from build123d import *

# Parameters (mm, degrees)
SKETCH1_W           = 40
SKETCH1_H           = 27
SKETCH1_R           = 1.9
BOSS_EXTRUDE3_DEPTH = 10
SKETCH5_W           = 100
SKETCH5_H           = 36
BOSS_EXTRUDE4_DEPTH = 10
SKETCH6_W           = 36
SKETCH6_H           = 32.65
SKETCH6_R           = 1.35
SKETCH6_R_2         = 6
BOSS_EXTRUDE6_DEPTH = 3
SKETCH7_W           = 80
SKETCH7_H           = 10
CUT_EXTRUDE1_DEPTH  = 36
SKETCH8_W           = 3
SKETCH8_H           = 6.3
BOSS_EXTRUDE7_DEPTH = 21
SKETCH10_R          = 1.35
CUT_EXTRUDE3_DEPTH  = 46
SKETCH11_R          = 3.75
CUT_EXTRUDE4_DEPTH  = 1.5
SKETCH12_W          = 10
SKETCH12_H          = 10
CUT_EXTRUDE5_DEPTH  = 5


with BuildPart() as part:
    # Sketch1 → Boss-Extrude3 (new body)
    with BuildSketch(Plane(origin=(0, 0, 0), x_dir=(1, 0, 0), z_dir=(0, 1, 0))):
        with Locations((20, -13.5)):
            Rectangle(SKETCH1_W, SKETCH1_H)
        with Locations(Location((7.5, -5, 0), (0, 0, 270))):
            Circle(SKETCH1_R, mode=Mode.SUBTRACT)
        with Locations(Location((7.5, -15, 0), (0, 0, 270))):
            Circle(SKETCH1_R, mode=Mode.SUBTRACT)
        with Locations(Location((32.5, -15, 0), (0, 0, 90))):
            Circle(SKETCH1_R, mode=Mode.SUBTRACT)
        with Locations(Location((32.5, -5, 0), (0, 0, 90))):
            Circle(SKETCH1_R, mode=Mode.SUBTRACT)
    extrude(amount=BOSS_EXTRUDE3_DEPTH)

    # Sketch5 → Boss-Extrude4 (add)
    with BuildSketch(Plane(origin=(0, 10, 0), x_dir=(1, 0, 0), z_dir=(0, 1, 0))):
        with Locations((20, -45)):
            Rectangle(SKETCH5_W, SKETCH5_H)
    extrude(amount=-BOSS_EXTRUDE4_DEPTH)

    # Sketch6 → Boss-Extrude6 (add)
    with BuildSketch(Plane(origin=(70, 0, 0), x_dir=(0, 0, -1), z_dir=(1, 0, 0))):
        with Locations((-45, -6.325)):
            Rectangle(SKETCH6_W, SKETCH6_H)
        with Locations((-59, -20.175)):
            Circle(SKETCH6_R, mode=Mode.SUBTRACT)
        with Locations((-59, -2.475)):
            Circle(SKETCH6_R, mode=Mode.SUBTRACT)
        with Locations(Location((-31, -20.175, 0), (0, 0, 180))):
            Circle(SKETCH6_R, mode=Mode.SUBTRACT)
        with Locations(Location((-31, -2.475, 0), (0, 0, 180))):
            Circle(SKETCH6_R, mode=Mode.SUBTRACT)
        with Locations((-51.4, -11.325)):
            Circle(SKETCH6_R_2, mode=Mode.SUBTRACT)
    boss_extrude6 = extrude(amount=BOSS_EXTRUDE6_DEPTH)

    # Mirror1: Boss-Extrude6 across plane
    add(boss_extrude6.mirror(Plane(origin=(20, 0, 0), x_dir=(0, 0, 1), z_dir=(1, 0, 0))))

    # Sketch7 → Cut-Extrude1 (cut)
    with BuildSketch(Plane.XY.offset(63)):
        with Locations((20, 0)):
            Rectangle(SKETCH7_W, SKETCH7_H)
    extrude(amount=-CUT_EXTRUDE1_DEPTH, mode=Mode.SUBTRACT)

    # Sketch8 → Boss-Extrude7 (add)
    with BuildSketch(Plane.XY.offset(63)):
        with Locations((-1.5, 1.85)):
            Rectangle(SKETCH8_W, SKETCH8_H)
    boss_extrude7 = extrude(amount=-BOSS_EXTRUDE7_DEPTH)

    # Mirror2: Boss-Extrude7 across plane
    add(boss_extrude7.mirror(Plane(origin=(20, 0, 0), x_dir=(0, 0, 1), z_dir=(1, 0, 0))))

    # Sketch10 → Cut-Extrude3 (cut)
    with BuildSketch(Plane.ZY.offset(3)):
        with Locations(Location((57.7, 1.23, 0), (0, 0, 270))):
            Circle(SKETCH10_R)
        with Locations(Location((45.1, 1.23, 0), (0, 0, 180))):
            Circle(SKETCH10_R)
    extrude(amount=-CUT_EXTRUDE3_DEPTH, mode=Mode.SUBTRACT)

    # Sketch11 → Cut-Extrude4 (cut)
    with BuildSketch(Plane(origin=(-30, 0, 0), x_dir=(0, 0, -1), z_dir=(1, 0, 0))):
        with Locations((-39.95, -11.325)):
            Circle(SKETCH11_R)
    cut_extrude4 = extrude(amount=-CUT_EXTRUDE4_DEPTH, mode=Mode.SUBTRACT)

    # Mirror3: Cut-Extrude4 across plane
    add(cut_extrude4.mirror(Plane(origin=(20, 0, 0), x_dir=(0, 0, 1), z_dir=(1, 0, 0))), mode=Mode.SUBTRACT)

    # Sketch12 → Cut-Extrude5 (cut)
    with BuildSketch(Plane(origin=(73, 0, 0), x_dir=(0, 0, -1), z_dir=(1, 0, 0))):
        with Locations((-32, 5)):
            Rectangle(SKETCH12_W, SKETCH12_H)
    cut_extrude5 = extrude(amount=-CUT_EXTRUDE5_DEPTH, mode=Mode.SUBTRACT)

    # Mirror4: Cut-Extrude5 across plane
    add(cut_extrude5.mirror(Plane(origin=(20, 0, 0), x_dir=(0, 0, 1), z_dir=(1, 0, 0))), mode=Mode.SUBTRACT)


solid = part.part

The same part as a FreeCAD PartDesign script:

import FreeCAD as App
import Part
import Sketcher
Q = App.Units.Quantity


def add_polygon(sketch, points):
    """Adds a closed chain of lines whose ends are joined by coincident constraints."""
    first, n = sketch.GeometryCount, len(points)
    for a, b in zip(points, points[1:] + points[:1]):
        sketch.addGeometry(Part.LineSegment(App.Vector(*a, 0), App.Vector(*b, 0)), False)
    for i in range(n):
        sketch.addConstraint(Sketcher.Constraint("Coincident", first + i, 2, first + (i + 1) % n, 1))

doc = App.newDocument("Part")
body = doc.addObject("PartDesign::Body", "Body")

# Sketch on XZ plane
sketch1 = body.newObject("Sketcher::SketchObject", "Sketch")
sketch1.AttachmentSupport = (doc.getObject("XZ_Plane"), [""])
sketch1.MapMode = "FlatFace"
add_polygon(sketch1, [(0, 0), (0, 27), (40, 27), (40, 0)])  # lines 0-3
sketch1.addGeometry(Part.Circle(App.Vector(7.5, 15, 0), App.Vector(0, 0, 1), 1.9), False)  # 4
sketch1.addGeometry(Part.Circle(App.Vector(32.5, 15, 0), App.Vector(0, 0, 1), 1.9), False)  # 5
sketch1.addGeometry(Part.Circle(App.Vector(7.5, 5, 0), App.Vector(0, 0, 1), 1.9), False)  # 6
sketch1.addGeometry(Part.Circle(App.Vector(32.5, 5, 0), App.Vector(0, 0, 1), 1.9), False)  # 7
sketch1.addConstraint(Sketcher.Constraint("Vertical", 0))
sketch1.addConstraint(Sketcher.Constraint("Horizontal", 1))
sketch1.addConstraint(Sketcher.Constraint("Vertical", 2))
sketch1.addConstraint(Sketcher.Constraint("Horizontal", 3))
sketch1.addConstraint(Sketcher.Constraint("Coincident", 3, 2, -1, 1))
sketch1.addConstraint(Sketcher.Constraint("Equal", 4, 5))
sketch1.addConstraint(Sketcher.Constraint("Equal", 5, 6))
sketch1.addConstraint(Sketcher.Constraint("Equal", 6, 7))
sketch1.addConstraint(Sketcher.Constraint("Horizontal", 4, 3, 5, 3))
sketch1.addConstraint(Sketcher.Constraint("Horizontal", 6, 3, 7, 3))
sketch1.addConstraint(Sketcher.Constraint("Vertical", 4, 3, 6, 3))
sketch1.addConstraint(Sketcher.Constraint("Vertical", 5, 3, 7, 3))
sketch1.addConstraint(Sketcher.Constraint("Diameter", 4, Q("3.8 mm")))
sketch1.addConstraint(Sketcher.Constraint("DistanceX", 1, 1, 1, 2, Q("40 mm")))
sketch1.addConstraint(Sketcher.Constraint("DistanceY", 0, 1, 0, 2, Q("27 mm")))
sketch1.addConstraint(Sketcher.Constraint("DistanceY", -1, 1, 4, 3, Q("15 mm")))
sketch1.addConstraint(Sketcher.Constraint("DistanceY", -1, 1, 6, 3, Q("5 mm")))
sketch1.addConstraint(Sketcher.Constraint("DistanceX", 4, 3, 5, 3, Q("25 mm")))
sketch1.addConstraint(Sketcher.Constraint("DistanceX", -1, 1, 4, 3, Q("7.5 mm")))
pad1 = body.newObject("PartDesign::Pad", "Pad")
pad1.Profile = sketch1
pad1.Length = 10
pad1.Reversed = True

# Sketch on XZ plane
sketch2 = body.newObject("Sketcher::SketchObject", "Sketch001")
sketch2.AttachmentSupport = (doc.getObject("XZ_Plane"), [""])
sketch2.MapMode = "FlatFace"
sketch2.AttachmentOffset = App.Placement(App.Vector(0, 0, -10), App.Rotation())
add_polygon(sketch2, [(-30, 27), (-30, 63), (70, 63), (70, 27)])  # lines 0-3
sketch2.addConstraint(Sketcher.Constraint("Vertical", 0))
sketch2.addConstraint(Sketcher.Constraint("Horizontal", 1))
sketch2.addConstraint(Sketcher.Constraint("Vertical", 2))
sketch2.addConstraint(Sketcher.Constraint("Horizontal", 3))
sketch2.addConstraint(Sketcher.Constraint("DistanceX", 1, 1, 1, 2, Q("100 mm")))
sketch2.addConstraint(Sketcher.Constraint("DistanceY", 0, 1, 0, 2, Q("36 mm")))
sketch2.addConstraint(Sketcher.Constraint("DistanceX", 0, 2, -1, 1, Q("30 mm")))
sketch2.addConstraint(Sketcher.Constraint("DistanceY", -1, 1, 0, 2, Q("63 mm")))
pad2 = body.newObject("PartDesign::Pad", "Pad001")
pad2.Profile = sketch2
pad2.Length = 10

# Sketch on YZ plane
sketch3 = body.newObject("Sketcher::SketchObject", "Sketch002")
sketch3.AttachmentSupport = (doc.getObject("YZ_Plane"), [""])
sketch3.MapMode = "FlatFace"
sketch3.AttachmentOffset = App.Placement(App.Vector(0, 0, 70), App.Rotation())
add_polygon(sketch3, [(10, 63), (-22.65, 63), (-22.65, 27), (10, 27)])  # lines 0-3
sketch3.addGeometry(Part.Circle(App.Vector(-20.175, 59, 0), App.Vector(0, 0, 1), 1.35), False)  # 4
sketch3.addGeometry(Part.Circle(App.Vector(-20.175, 31, 0), App.Vector(0, 0, 1), 1.35), False)  # 5
sketch3.addGeometry(Part.Circle(App.Vector(-11.325, 51.4, 0), App.Vector(0, 0, 1), 6), False)  # 6
sketch3.addGeometry(Part.Circle(App.Vector(-2.475, 59, 0), App.Vector(0, 0, 1), 1.35), False)  # 7
sketch3.addGeometry(Part.Circle(App.Vector(-2.475, 31, 0), App.Vector(0, 0, 1), 1.35), False)  # 8
sketch3.addConstraint(Sketcher.Constraint("Horizontal", 0))
sketch3.addConstraint(Sketcher.Constraint("Vertical", 1))
sketch3.addConstraint(Sketcher.Constraint("Horizontal", 2))
sketch3.addConstraint(Sketcher.Constraint("Vertical", 3))
sketch3.addConstraint(Sketcher.Constraint("Equal", 4, 5))
sketch3.addConstraint(Sketcher.Constraint("Equal", 5, 7))
sketch3.addConstraint(Sketcher.Constraint("Equal", 7, 8))
sketch3.addConstraint(Sketcher.Constraint("Horizontal", 4, 3, 7, 3))
sketch3.addConstraint(Sketcher.Constraint("Horizontal", 5, 3, 8, 3))
sketch3.addConstraint(Sketcher.Constraint("Vertical", 4, 3, 5, 3))
sketch3.addConstraint(Sketcher.Constraint("Vertical", 7, 3, 8, 3))
sketch3.addConstraint(Sketcher.Constraint("Diameter", 6, Q("12 mm")))
sketch3.addConstraint(Sketcher.Constraint("Diameter", 4, Q("2.7 mm")))
sketch3.addConstraint(Sketcher.Constraint("DistanceY", 1, 2, 1, 1, Q("36 mm")))
sketch3.addConstraint(Sketcher.Constraint("DistanceY", -1, 1, 4, 3, Q("59 mm")))
sketch3.addConstraint(Sketcher.Constraint("DistanceY", -1, 1, 5, 3, Q("31 mm")))
sketch3.addConstraint(Sketcher.Constraint("DistanceY", -1, 1, 0, 2, Q("63 mm")))
sketch3.addConstraint(Sketcher.Constraint("DistanceX", -1, 1, 2, 2, Q("10 mm")))
sketch3.addConstraint(Sketcher.Constraint("DistanceX", 0, 2, 0, 1, Q("32.65 mm")))
sketch3.addConstraint(Sketcher.Constraint("DistanceY", -1, 1, 6, 3, Q("51.4 mm")))
sketch3.addConstraint(Sketcher.Constraint("DistanceX", 4, 3, 7, 3, Q("17.7 mm")))
sketch3.addConstraint(Sketcher.Constraint("DistanceX", 4, 3, 6, 3, Q("8.85 mm")))
sketch3.addConstraint(Sketcher.Constraint("DistanceX", 4, 3, -1, 1, Q("20.175 mm")))
pad3 = body.newObject("PartDesign::Pad", "Pad002")
pad3.Profile = sketch3
pad3.Length = 3
doc.recompute()

datumplane = body.newObject("PartDesign::Plane", "DatumPlane")
datumplane.AttachmentSupport = (doc.getObject("YZ_Plane"), [""])
datumplane.MapMode = "FlatFace"
datumplane.AttachmentOffset = App.Placement(App.Vector(0, 0, 20), App.Rotation())
mirrored = body.newObject("PartDesign::Mirrored", "Mirrored")
mirrored.Originals = [pad3]
mirrored.MirrorPlane = (datumplane, [""])
body.Tip = mirrored

# Sketch on XY plane
sketch4 = body.newObject("Sketcher::SketchObject", "Sketch003")
sketch4.AttachmentSupport = (doc.getObject("XY_Plane"), [""])
sketch4.MapMode = "FlatFace"
sketch4.AttachmentOffset = App.Placement(App.Vector(0, 0, 63), App.Rotation())
add_polygon(sketch4, [(-20, 5), (-20, -5), (60, -5), (60, 5)])  # lines 0-3
sketch4.addConstraint(Sketcher.Constraint("Vertical", 0))
sketch4.addConstraint(Sketcher.Constraint("Horizontal", 1))
sketch4.addConstraint(Sketcher.Constraint("Vertical", 2))
sketch4.addConstraint(Sketcher.Constraint("Horizontal", 3))
sketch4.addConstraint(Sketcher.Constraint("DistanceX", 1, 1, 1, 2, Q("80 mm")))
sketch4.addConstraint(Sketcher.Constraint("DistanceY", 0, 2, 0, 1, Q("10 mm")))
sketch4.addConstraint(Sketcher.Constraint("DistanceX", 0, 2, -1, 1, Q("20 mm")))
sketch4.addConstraint(Sketcher.Constraint("DistanceY", 0, 2, -1, 1, Q("5 mm")))
pocket1 = body.newObject("PartDesign::Pocket", "Pocket")
pocket1.Profile = sketch4
pocket1.Length = 36

# Sketch on XY plane
sketch5 = body.newObject("Sketcher::SketchObject", "Sketch004")
sketch5.AttachmentSupport = (doc.getObject("XY_Plane"), [""])
sketch5.MapMode = "FlatFace"
sketch5.AttachmentOffset = App.Placement(App.Vector(0, 0, 63), App.Rotation())
add_polygon(sketch5, [(-3, 5), (-3, -1.3), (0, -1.3), (0, 5)])  # lines 0-3
sketch5.addConstraint(Sketcher.Constraint("Vertical", 0))
sketch5.addConstraint(Sketcher.Constraint("Horizontal", 1))
sketch5.addConstraint(Sketcher.Constraint("Vertical", 2))
sketch5.addConstraint(Sketcher.Constraint("Horizontal", 3))
sketch5.addConstraint(Sketcher.Constraint("PointOnObject", 1, 2, -2))
sketch5.addConstraint(Sketcher.Constraint("DistanceX", 1, 1, 1, 2, Q("3 mm")))
sketch5.addConstraint(Sketcher.Constraint("DistanceY", 0, 2, 0, 1, Q("6.3 mm")))
sketch5.addConstraint(Sketcher.Constraint("DistanceY", -1, 1, 2, 2, Q("5 mm")))
pad4 = body.newObject("PartDesign::Pad", "Pad003")
pad4.Profile = sketch5
pad4.Length = 21
pad4.Reversed = True
doc.recompute()

datumplane2 = body.newObject("PartDesign::Plane", "DatumPlane001")
datumplane2.AttachmentSupport = (doc.getObject("YZ_Plane"), [""])
datumplane2.MapMode = "FlatFace"
datumplane2.AttachmentOffset = App.Placement(App.Vector(0, 0, 20), App.Rotation())
mirrored2 = body.newObject("PartDesign::Mirrored", "Mirrored001")
mirrored2.Originals = [pad4]
mirrored2.MirrorPlane = (datumplane2, [""])
body.Tip = mirrored2

# Sketch on YZ plane
sketch6 = body.newObject("Sketcher::SketchObject", "Sketch005")
sketch6.AttachmentSupport = (doc.getObject("YZ_Plane"), [""])
sketch6.MapMode = "FlatFace"
sketch6.AttachmentOffset = App.Placement(App.Vector(0, 0, -3), App.Rotation())
sketch6.addGeometry(Part.Circle(App.Vector(1.23, 57.7, 0), App.Vector(0, 0, 1), 1.35), False)
sketch6.addGeometry(Part.Circle(App.Vector(1.23, 45.1, 0), App.Vector(0, 0, 1), 1.35), False)
sketch6.addConstraint(Sketcher.Constraint("Equal", 0, 1))
sketch6.addConstraint(Sketcher.Constraint("Vertical", 0, 3, 1, 3))
sketch6.addConstraint(Sketcher.Constraint("Diameter", 0, Q("2.7 mm")))
sketch6.addConstraint(Sketcher.Constraint("DistanceY", -1, 1, 0, 3, Q("57.7 mm")))
sketch6.addConstraint(Sketcher.Constraint("DistanceY", -1, 1, 1, 3, Q("45.1 mm")))
sketch6.addConstraint(Sketcher.Constraint("DistanceX", -1, 1, 0, 3, Q("1.23 mm")))
pocket2 = body.newObject("PartDesign::Pocket", "Pocket001")
pocket2.Profile = sketch6
pocket2.Length = 46
pocket2.Reversed = True

# Sketch on YZ plane
sketch7 = body.newObject("Sketcher::SketchObject", "Sketch006")
sketch7.AttachmentSupport = (doc.getObject("YZ_Plane"), [""])
sketch7.MapMode = "FlatFace"
sketch7.AttachmentOffset = App.Placement(App.Vector(0, 0, -30), App.Rotation())
sketch7.addGeometry(Part.Circle(App.Vector(-11.325, 39.95, 0), App.Vector(0, 0, 1), 3.75), False)
sketch7.addConstraint(Sketcher.Constraint("Diameter", 0, Q("7.5 mm")))
sketch7.addConstraint(Sketcher.Constraint("DistanceY", -1, 1, 0, 3, Q("39.95 mm")))
sketch7.addConstraint(Sketcher.Constraint("DistanceX", 0, 3, -1, 1, Q("11.325 mm")))
pocket3 = body.newObject("PartDesign::Pocket", "Pocket002")
pocket3.Profile = sketch7
pocket3.Length = 1.5
doc.recompute()

datumplane3 = body.newObject("PartDesign::Plane", "DatumPlane002")
datumplane3.AttachmentSupport = (doc.getObject("YZ_Plane"), [""])
datumplane3.MapMode = "FlatFace"
datumplane3.AttachmentOffset = App.Placement(App.Vector(0, 0, 20), App.Rotation())
mirrored3 = body.newObject("PartDesign::Mirrored", "Mirrored002")
mirrored3.Originals = [pocket3]
mirrored3.MirrorPlane = (datumplane3, [""])
body.Tip = mirrored3

# Sketch on YZ plane
sketch8 = body.newObject("Sketcher::SketchObject", "Sketch007")
sketch8.AttachmentSupport = (doc.getObject("YZ_Plane"), [""])
sketch8.MapMode = "FlatFace"
sketch8.AttachmentOffset = App.Placement(App.Vector(0, 0, 73), App.Rotation())
add_polygon(sketch8, [(10, 37), (0, 37), (0, 27), (10, 27)])  # lines 0-3
sketch8.addConstraint(Sketcher.Constraint("Horizontal", 0))
sketch8.addConstraint(Sketcher.Constraint("Vertical", 1))
sketch8.addConstraint(Sketcher.Constraint("Horizontal", 2))
sketch8.addConstraint(Sketcher.Constraint("Vertical", 3))
sketch8.addConstraint(Sketcher.Constraint("PointOnObject", 0, 2, -2))
sketch8.addConstraint(Sketcher.Constraint("Equal", 2, 1))
sketch8.addConstraint(Sketcher.Constraint("DistanceX", 0, 2, 0, 1, Q("10 mm")))
sketch8.addConstraint(Sketcher.Constraint("DistanceY", -1, 1, 0, 2, Q("37 mm")))
pocket4 = body.newObject("PartDesign::Pocket", "Pocket003")
pocket4.Profile = sketch8
pocket4.Length = 5
doc.recompute()

datumplane4 = body.newObject("PartDesign::Plane", "DatumPlane003")
datumplane4.AttachmentSupport = (doc.getObject("YZ_Plane"), [""])
datumplane4.MapMode = "FlatFace"
datumplane4.AttachmentOffset = App.Placement(App.Vector(0, 0, 20), App.Rotation())
mirrored4 = body.newObject("PartDesign::Mirrored", "Mirrored003")
mirrored4.Originals = [pocket4]
mirrored4.MirrorPlane = (datumplane4, [""])
body.Tip = mirrored4

doc.recompute()
